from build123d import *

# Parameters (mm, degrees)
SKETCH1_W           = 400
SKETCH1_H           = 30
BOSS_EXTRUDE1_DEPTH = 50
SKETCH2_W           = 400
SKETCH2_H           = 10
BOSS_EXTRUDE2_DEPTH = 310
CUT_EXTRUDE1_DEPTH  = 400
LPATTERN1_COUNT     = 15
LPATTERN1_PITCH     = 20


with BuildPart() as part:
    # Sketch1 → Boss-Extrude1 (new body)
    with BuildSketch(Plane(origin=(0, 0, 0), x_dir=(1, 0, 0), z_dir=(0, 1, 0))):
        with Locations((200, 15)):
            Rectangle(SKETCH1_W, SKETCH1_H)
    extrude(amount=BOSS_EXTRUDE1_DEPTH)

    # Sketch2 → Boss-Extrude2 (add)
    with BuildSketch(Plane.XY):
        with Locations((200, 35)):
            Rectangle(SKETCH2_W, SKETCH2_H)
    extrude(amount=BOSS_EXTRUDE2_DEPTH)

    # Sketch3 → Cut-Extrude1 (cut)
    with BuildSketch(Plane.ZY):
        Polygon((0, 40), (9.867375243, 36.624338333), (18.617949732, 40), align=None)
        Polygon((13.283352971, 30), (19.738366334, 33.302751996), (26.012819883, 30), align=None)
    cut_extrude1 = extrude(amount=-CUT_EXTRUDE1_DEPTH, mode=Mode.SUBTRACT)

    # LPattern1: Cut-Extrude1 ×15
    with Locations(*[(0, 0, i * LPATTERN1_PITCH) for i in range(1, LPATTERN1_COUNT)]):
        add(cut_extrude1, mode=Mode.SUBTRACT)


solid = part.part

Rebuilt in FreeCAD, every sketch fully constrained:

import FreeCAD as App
import Part
import Sketcher
from FreeCAD import Vector


def add_polygon(sketch, points):
    """Adds a closed chain of lines whose ends are joined by coincident constraints."""
    first, n = sketch.GeometryCount, len(points)
    for a, b in zip(points, points[1:] + points[:1]):
        sketch.addGeometry(Part.LineSegment(App.Vector(*a, 0), App.Vector(*b, 0)), False)
    for i in range(n):
        sketch.addConstraint(Sketcher.Constraint("Coincident", first + i, 2, first + (i + 1) % n, 1))

doc = App.newDocument("Part")
body = doc.addObject("PartDesign::Body", "Body")

# Sketch on XZ plane
sketch1 = body.newObject("Sketcher::SketchObject", "Sketch")
sketch1.AttachmentSupport = (doc.getObject("XZ_Plane"), [""])
sketch1.MapMode = "FlatFace"
add_polygon(sketch1, [(0, -30), (0, 0), (400, 0), (400, -30)])  # lines 0-3
sketch1.addConstraint([
    Sketcher.Constraint("Vertical", 0),
    Sketcher.Constraint("Horizontal", 1),
    Sketcher.Constraint("Vertical", 2),
    Sketcher.Constraint("Horizontal", 3),
    Sketcher.Constraint("Coincident", 0, 2, -1, 1),
    Sketcher.Constraint("DistanceX", 1, 1, 1, 2, 400.0),
    Sketcher.Constraint("DistanceY", 0, 1, 0, 2, 30.0),
])
pad1 = body.newObject("PartDesign::Pad", "Pad")
pad1.Profile = sketch1
pad1.Length = 50
pad1.Reversed = True

# Sketch on XY plane
sketch2 = body.newObject("Sketcher::SketchObject", "Sketch001")
sketch2.AttachmentSupport = (doc.getObject("XY_Plane"), [""])
sketch2.MapMode = "FlatFace"
add_polygon(sketch2, [(0, 40), (0, 30), (400, 30), (400, 40)])  # lines 0-3
sketch2.addConstraint([
    Sketcher.Constraint("Vertical", 0),
    Sketcher.Constraint("Horizontal", 1),
    Sketcher.Constraint("Vertical", 2),
    Sketcher.Constraint("Horizontal", 3),
    Sketcher.Constraint("PointOnObject", 0, 2, -2),
    Sketcher.Constraint("DistanceX", 1, 1, 1, 2, 400.0),
    Sketcher.Constraint("DistanceY", 0, 2, 0, 1, 10.0),
    Sketcher.Constraint("DistanceY", -1, 1, 0, 2, 30.0),
])
pad2 = body.newObject("PartDesign::Pad", "Pad001")
pad2.Profile = sketch2
pad2.Length = 310

# Sketch on YZ plane
sketch3 = body.newObject("Sketcher::SketchObject", "Sketch002")
sketch3.AttachmentSupport = (doc.getObject("YZ_Plane"), [""])
sketch3.MapMode = "FlatFace"
add_polygon(sketch3, [(40, 0), (36.624338, 9.867375), (40, 18.61795)])  # lines 0-2
add_polygon(sketch3, [(33.302752, 19.738366), (30, 13.283353), (30, 26.01282)])  # lines 3-5
sketch3.addConstraint([
    Sketcher.Constraint("Vertical", 2),
    Sketcher.Constraint("Vertical", 4),
    Sketcher.Constraint("PointOnObject", 2, 2, -1),
    Sketcher.Constraint("DistanceX", -1, 1, 1, 2, 40.0),
    Sketcher.Constraint("DistanceX", -1, 1, 3, 2, 30.0),
    Sketcher.Constraint("DistanceY", 2, 2, 2, 1, 18.61795),
    Sketcher.Constraint("DistanceY", 4, 1, 4, 2, 12.729467),
    Sketcher.Constraint("DistanceX", -1, 1, 0, 2, 36.624338),
    Sketcher.Constraint("DistanceY", -1, 1, 4, 2, 26.01282),
    Sketcher.Constraint("DistanceX", -1, 1, 5, 2, 33.302752),
    Sketcher.Constraint("DistanceY", 0, 2, 5, 2, 9.870991),
    Sketcher.Constraint("Distance", 0, 10.428815),
])
pocket1 = body.newObject("PartDesign::Pocket", "Pocket")
pocket1.Profile = sketch3
pocket1.Length = 400
pocket1.Reversed = True
doc.recompute()

linearpattern = body.newObject("PartDesign::LinearPattern", "LinearPattern")
linearpattern.Originals = [pocket1]
linearpattern.Direction = (doc.getObject("Z_Axis"), [""])
linearpattern.Mode = "offset"
linearpattern.Offset = 20
linearpattern.Occurrences = 15
body.Tip = linearpattern

doc.recompute()
